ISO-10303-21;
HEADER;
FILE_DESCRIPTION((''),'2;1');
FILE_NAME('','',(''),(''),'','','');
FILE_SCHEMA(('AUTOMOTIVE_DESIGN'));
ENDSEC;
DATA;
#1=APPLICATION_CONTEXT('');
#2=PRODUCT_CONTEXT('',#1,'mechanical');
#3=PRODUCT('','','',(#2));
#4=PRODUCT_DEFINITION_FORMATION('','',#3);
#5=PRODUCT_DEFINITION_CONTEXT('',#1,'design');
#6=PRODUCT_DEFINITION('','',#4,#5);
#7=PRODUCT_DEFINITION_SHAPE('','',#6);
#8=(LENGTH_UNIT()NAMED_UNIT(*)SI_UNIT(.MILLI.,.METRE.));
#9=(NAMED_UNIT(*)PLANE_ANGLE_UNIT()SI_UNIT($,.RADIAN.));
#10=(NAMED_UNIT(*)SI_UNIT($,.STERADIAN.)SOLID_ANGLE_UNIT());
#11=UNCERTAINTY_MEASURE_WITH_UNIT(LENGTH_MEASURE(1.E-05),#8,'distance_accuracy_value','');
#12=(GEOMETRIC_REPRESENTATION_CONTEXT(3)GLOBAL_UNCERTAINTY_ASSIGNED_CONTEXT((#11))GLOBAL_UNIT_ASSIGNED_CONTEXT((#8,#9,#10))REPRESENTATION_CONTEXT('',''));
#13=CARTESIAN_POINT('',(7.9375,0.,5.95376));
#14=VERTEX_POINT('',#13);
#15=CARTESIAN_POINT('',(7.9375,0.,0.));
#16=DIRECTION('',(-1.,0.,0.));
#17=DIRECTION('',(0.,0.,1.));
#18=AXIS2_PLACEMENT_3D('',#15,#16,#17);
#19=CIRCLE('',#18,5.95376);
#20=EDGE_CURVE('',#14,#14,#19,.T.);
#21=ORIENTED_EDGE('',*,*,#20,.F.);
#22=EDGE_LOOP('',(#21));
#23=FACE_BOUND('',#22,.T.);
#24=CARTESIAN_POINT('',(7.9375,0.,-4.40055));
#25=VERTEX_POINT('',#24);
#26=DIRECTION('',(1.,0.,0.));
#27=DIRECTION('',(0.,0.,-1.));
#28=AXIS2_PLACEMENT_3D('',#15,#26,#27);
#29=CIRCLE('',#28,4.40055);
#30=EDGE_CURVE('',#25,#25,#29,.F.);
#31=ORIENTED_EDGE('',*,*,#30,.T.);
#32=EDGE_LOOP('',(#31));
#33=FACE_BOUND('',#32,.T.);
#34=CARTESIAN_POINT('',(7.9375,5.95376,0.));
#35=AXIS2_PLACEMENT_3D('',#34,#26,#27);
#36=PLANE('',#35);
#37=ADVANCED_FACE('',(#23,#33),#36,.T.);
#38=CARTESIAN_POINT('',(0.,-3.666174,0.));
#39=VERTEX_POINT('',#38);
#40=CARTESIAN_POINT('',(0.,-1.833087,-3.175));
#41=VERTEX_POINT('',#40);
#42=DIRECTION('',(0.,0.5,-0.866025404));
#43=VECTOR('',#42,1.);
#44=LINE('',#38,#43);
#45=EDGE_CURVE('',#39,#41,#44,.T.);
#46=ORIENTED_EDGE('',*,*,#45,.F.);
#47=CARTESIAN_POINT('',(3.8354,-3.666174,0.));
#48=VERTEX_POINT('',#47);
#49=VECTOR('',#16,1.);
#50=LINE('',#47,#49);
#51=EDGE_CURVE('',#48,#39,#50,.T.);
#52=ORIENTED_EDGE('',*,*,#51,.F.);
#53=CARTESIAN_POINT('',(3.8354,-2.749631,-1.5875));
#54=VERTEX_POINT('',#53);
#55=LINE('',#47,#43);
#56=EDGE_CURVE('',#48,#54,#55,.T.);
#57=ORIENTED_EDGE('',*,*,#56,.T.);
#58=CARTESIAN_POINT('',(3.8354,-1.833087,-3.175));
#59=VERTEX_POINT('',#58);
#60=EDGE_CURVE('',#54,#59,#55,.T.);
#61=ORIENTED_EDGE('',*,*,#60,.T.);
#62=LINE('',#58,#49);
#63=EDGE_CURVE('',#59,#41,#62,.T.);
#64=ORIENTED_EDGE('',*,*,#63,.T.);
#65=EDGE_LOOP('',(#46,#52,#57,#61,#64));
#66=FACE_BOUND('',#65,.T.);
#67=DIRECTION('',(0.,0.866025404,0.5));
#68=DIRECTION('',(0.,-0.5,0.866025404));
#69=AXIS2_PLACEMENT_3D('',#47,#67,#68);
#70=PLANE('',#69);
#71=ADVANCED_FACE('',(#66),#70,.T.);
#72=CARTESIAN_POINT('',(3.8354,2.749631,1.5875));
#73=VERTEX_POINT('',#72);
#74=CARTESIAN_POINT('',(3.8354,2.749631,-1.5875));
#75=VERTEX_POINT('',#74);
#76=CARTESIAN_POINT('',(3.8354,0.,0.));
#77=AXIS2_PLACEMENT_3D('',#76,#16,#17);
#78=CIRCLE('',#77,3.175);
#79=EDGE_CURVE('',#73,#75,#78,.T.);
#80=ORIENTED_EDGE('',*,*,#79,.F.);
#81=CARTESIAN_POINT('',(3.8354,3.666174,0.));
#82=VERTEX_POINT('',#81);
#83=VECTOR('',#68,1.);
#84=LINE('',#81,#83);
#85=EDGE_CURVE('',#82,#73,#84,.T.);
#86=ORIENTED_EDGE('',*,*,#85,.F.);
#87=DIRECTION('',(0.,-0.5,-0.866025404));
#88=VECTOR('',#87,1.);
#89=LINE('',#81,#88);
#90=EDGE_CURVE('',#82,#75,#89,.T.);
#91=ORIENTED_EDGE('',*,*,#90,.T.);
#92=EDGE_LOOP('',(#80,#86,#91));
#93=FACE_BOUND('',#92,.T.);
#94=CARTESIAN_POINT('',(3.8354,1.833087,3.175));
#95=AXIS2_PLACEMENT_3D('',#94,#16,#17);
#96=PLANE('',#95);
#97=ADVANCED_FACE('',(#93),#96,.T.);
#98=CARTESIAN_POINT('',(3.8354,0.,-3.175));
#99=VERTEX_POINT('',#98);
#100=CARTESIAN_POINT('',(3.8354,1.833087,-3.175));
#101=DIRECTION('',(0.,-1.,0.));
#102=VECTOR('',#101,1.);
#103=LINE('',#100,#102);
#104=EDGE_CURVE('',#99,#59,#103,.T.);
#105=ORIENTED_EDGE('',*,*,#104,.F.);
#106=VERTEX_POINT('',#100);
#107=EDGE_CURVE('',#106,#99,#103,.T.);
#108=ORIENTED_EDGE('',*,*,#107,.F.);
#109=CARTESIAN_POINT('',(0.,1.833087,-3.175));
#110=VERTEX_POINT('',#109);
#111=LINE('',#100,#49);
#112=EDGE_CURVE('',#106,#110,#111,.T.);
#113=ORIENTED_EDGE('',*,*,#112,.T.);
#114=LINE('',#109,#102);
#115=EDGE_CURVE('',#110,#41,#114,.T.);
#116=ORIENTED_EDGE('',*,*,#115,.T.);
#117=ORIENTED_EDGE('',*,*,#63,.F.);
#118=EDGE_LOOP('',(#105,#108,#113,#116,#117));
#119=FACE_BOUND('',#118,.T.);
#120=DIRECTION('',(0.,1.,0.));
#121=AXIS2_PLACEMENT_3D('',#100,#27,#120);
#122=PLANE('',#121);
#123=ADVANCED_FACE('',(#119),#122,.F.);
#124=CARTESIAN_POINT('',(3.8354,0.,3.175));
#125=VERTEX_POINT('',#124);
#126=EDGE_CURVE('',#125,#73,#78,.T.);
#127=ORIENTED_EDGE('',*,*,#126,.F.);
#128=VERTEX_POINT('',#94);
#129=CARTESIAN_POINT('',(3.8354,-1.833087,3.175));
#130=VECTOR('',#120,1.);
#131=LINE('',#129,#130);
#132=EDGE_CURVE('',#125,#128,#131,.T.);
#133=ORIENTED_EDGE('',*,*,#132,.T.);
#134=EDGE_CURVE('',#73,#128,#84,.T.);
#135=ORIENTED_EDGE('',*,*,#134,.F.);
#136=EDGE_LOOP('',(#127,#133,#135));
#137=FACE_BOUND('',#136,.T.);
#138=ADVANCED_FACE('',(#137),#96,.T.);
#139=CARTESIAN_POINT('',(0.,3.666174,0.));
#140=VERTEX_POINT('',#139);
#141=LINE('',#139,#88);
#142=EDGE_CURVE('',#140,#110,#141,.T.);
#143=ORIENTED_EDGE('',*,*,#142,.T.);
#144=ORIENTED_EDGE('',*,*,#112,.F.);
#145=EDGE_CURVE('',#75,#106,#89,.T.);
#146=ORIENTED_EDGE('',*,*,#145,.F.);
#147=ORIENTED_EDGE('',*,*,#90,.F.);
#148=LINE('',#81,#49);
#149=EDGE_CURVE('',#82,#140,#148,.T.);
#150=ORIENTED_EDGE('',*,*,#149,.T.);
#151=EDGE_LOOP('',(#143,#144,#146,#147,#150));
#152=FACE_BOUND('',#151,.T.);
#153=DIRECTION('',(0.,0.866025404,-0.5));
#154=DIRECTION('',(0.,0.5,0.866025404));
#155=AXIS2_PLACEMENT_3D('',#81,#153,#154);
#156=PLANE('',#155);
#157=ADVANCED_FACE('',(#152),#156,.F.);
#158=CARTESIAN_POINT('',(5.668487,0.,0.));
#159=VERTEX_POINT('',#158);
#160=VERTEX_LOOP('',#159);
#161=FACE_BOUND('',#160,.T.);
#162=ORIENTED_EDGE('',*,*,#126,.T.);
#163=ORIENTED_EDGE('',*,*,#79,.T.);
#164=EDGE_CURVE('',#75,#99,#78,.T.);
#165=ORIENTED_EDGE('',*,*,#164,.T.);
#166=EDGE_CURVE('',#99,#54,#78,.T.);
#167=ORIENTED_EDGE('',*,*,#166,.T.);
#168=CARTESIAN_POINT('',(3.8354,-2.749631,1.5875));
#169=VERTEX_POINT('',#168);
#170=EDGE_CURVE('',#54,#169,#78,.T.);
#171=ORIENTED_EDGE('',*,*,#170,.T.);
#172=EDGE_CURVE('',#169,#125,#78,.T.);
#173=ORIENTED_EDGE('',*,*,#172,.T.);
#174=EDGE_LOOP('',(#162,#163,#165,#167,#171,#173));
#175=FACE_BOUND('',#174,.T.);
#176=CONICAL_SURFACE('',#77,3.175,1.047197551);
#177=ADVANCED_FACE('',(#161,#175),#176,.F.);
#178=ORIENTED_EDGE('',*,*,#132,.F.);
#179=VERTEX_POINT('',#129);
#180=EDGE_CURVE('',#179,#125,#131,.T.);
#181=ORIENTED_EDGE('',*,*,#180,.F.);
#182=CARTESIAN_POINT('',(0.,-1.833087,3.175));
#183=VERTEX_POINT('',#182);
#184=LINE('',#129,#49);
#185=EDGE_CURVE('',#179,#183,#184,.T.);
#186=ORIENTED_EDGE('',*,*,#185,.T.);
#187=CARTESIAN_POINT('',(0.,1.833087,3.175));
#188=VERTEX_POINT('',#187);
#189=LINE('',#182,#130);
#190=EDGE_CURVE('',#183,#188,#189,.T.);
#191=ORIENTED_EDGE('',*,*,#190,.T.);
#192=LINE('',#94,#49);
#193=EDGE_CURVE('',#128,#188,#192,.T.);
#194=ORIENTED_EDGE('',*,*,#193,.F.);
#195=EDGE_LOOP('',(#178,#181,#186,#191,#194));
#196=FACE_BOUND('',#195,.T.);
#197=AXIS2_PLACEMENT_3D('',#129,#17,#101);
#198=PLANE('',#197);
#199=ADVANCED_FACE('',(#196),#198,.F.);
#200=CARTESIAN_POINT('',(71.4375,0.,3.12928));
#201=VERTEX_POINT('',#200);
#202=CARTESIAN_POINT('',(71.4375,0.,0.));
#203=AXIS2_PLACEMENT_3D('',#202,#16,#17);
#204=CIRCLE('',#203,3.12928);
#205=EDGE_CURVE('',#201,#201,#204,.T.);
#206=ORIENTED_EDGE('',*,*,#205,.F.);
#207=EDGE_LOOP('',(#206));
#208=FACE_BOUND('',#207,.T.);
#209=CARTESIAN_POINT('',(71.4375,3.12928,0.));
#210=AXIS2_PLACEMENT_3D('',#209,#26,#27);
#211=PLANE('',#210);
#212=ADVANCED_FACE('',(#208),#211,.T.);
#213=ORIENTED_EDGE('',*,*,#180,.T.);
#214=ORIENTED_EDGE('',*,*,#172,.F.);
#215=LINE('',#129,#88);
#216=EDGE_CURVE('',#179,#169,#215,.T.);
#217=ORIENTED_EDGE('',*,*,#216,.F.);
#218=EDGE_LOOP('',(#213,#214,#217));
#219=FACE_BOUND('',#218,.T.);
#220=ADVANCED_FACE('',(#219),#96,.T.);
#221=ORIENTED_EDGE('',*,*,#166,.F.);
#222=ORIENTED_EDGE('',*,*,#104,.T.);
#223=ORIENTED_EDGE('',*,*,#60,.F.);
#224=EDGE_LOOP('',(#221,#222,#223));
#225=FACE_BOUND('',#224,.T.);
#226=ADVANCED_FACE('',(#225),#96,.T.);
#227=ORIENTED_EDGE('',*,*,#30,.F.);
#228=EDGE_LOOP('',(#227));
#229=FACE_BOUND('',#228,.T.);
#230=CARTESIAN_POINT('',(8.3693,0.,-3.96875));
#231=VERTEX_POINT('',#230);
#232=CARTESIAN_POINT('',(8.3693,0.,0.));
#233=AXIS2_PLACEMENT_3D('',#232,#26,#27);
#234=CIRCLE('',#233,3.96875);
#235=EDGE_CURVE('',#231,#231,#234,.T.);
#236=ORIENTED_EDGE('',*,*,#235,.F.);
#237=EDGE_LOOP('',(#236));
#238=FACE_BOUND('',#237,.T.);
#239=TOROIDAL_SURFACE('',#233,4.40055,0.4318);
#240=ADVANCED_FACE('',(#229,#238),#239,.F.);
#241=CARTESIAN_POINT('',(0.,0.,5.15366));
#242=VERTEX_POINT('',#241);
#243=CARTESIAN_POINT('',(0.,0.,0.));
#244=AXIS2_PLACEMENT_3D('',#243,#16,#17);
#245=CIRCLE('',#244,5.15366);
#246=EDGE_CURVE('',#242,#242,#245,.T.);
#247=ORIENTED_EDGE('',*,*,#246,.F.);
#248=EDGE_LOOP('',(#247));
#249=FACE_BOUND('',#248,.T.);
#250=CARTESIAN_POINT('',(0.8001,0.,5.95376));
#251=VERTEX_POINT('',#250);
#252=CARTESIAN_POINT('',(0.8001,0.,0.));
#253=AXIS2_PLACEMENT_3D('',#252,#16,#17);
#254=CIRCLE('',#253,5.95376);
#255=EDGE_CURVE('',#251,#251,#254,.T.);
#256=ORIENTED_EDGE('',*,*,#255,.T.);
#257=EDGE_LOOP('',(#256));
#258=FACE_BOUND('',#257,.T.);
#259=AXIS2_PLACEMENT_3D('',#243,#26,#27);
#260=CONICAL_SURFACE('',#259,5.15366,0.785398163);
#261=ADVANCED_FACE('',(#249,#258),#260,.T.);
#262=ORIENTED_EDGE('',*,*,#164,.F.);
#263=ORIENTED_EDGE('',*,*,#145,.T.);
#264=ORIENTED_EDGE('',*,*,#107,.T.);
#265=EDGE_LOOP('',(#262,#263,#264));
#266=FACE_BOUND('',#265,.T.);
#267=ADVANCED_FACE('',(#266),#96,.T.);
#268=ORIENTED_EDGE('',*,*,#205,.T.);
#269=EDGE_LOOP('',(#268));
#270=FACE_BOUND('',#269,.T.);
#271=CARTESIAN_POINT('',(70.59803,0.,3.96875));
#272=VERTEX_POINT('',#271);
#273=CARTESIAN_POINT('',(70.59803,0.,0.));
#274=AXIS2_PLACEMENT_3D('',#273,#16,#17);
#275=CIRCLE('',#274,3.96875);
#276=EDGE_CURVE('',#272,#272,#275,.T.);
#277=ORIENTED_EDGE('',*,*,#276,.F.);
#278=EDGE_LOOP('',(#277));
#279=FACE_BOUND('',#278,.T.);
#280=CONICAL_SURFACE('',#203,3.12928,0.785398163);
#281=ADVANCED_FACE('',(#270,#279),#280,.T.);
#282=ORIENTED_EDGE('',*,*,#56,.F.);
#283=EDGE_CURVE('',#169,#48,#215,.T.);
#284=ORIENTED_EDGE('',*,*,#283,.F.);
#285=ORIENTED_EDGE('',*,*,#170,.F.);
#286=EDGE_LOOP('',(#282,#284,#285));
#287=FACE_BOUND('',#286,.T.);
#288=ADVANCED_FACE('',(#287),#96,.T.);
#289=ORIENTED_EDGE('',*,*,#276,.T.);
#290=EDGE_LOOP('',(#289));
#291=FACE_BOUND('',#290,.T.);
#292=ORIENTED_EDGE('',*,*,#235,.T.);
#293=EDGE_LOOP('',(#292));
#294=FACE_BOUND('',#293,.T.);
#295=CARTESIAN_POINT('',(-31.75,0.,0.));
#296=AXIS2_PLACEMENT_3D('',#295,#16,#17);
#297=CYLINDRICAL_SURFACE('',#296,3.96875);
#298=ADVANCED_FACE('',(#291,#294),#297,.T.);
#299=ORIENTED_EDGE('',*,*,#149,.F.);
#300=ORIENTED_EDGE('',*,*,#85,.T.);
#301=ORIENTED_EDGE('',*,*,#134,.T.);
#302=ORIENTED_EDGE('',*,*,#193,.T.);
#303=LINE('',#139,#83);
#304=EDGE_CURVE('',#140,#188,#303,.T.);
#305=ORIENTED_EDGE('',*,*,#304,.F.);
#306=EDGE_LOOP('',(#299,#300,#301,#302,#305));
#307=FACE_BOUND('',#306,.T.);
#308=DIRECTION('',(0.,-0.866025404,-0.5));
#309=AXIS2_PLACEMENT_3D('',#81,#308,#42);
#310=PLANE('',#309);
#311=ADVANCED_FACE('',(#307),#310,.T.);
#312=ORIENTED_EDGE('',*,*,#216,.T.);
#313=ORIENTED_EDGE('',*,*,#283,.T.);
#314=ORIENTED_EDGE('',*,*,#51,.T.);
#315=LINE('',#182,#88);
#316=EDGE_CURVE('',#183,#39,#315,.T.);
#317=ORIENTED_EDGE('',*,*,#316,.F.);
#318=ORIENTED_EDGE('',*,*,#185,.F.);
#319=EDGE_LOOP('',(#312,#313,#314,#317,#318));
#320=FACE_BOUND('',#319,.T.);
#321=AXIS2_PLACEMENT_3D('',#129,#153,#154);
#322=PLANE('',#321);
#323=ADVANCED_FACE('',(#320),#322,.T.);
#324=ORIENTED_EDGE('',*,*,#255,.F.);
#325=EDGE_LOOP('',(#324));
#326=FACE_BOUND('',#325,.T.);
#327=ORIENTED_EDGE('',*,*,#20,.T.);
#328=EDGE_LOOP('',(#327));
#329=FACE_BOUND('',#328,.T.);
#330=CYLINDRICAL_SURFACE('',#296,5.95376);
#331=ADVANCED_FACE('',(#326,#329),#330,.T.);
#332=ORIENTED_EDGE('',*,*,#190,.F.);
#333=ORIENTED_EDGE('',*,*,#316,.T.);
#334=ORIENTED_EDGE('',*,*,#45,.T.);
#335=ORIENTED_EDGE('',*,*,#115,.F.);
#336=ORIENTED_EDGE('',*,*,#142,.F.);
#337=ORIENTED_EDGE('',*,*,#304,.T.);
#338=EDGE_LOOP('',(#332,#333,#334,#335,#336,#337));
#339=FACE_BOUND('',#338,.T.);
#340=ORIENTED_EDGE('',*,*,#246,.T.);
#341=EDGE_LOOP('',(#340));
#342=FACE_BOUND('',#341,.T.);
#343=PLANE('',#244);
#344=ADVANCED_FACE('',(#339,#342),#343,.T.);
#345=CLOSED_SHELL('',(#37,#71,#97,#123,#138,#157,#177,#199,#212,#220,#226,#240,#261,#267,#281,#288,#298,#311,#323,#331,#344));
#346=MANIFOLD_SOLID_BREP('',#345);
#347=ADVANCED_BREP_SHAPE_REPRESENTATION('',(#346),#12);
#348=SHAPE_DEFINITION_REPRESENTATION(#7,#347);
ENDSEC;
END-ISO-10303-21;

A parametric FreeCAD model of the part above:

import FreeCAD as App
import Part
import Sketcher
Q = App.Units.Quantity


def edges_at(feature, points):
    """Names of the edges that pass closest to the given points."""
    edges = feature.Shape.Edges
    near = lambda p: min(range(len(edges)), key=lambda i: edges[i].distToShape(Part.Vertex(*p))[0])
    return sorted({f"Edge{near(p) + 1}" for p in points})


def add_polygon(sketch, points):
    """Adds a closed chain of lines whose ends are joined by coincident constraints."""
    first, n = sketch.GeometryCount, len(points)
    for a, b in zip(points, points[1:] + points[:1]):
        sketch.addGeometry(Part.LineSegment(App.Vector(*a, 0), App.Vector(*b, 0)), False)
    for i in range(n):
        sketch.addConstraint(Sketcher.Constraint("Coincident", first + i, 2, first + (i + 1) % n, 1))

doc = App.newDocument("Part")
body = doc.addObject("PartDesign::Body", "Body")

sketch1 = body.newObject("Sketcher::SketchObject", "Sketch")
sketch1.AttachmentSupport = (doc.getObject("XY_Plane"), [""])
sketch1.MapMode = "FlatFace"
add_polygon(sketch1, [(0, 5.2), (0, 0), (71.4, 0), (71.4, 3.1), (70.6, 4), (7.9, 4), (7.9, 6), (0.8, 6)])
sketch1.addConstraint(Sketcher.Constraint("Vertical", 0))
sketch1.addConstraint(Sketcher.Constraint("Horizontal", 1))
sketch1.addConstraint(Sketcher.Constraint("Vertical", 2))
sketch1.addConstraint(Sketcher.Constraint("Horizontal", 4))
sketch1.addConstraint(Sketcher.Constraint("Vertical", 5))
sketch1.addConstraint(Sketcher.Constraint("Horizontal", 6))
sketch1.addConstraint(Sketcher.Constraint("Coincident", 0, 2, -1, 1))
sketch1.addConstraint(Sketcher.Constraint("Perpendicular", 3, 7))
sketch1.addConstraint(Sketcher.Constraint("Angle", 3, Q("135 deg")))
sketch1.addConstraint(Sketcher.Constraint("DistanceX", 4, 2, 2, 2, Q("2.5 in")))
sketch1.addConstraint(Sketcher.Constraint("DistanceX", 1, 1, 1, 2, Q("2.8125 in")))
sketch1.addConstraint(Sketcher.Constraint("DistanceX", 6, 2, 6, 1, Q("0.281 in")))
sketch1.addConstraint(Sketcher.Constraint("DistanceY", 0, 2, 0, 1, Q("0.2029 in")))
sketch1.addConstraint(Sketcher.Constraint("DistanceY", 2, 1, 2, 2, Q("0.1232 in")))
sketch1.addConstraint(Sketcher.Constraint("DistanceY", -1, 1, 3, 2, Q("0.15625 in")))
revolution = body.newObject("PartDesign::Revolution", "Revolution")
revolution.Profile = sketch1
revolution.ReferenceAxis = (sketch1, ["H_Axis"])
revolution.Angle = 360
doc.recompute()

fillet = body.newObject("PartDesign::Fillet", "Fillet")
fillet.Base = (revolution, edges_at(revolution, [(7.938, 0, -3.969)]))
fillet.Radius = Q("0.017 in")

sketch2 = body.newObject("Sketcher::SketchObject", "Sketch001")
sketch2.AttachmentSupport = (doc.getObject("XY_Plane"), [""])
sketch2.MapMode = "FlatFace"
add_polygon(sketch2, [(3.8, 3.2), (0, 3.2), (0, 0), (5.7, 0)])
sketch2.addConstraint(Sketcher.Constraint("Horizontal", 0))
sketch2.addConstraint(Sketcher.Constraint("Vertical", 1))
sketch2.addConstraint(Sketcher.Constraint("Horizontal", 2))
sketch2.addConstraint(Sketcher.Constraint("Coincident", 1, 2, -1, 1))
sketch2.addConstraint(Sketcher.Constraint("Angle", 3, Q("120 deg")))
sketch2.addConstraint(Sketcher.Constraint("DistanceX", 0, 2, 0, 1, Q("0.151 in")))
sketch2.addConstraint(Sketcher.Constraint("DistanceY", 1, 2, 1, 1, Q("0.125 in")))
groove = body.newObject("PartDesign::Groove", "Groove")
groove.Profile = sketch2
groove.ReferenceAxis = (sketch2, ["H_Axis"])
groove.Angle = 360

sketch3 = body.newObject("Sketcher::SketchObject", "Sketch002")
sketch3.AttachmentSupport = (doc.getObject("YZ_Plane"), [""])
sketch3.MapMode = "FlatFace"
add_polygon(sketch3, [(3.7, 0), (1.8, -3.2), (-1.8, -3.2), (-3.7, 0), (-1.8, 3.2), (1.8, 3.2)])
sketch3.addConstraint(Sketcher.Constraint("Horizontal", 1))
sketch3.addConstraint(Sketcher.Constraint("Horizontal", 4))
sketch3.addConstraint(Sketcher.Constraint("Symmetric", 0, 2, 3, 2, -1, 1))
sketch3.addConstraint(Sketcher.Constraint("Symmetric", 2, 2, 5, 2, -1, 1))
sketch3.addConstraint(Sketcher.Constraint("PointOnObject", 2, 2, -1))
sketch3.addConstraint(Sketcher.Constraint("Parallel", 2, 5))
sketch3.addConstraint(Sketcher.Constraint("Vertical", 1, 2, 3, 2))
sketch3.addConstraint(Sketcher.Constraint("Angle", 0, Q("-120 deg")))
sketch3.addConstraint(Sketcher.Constraint("DistanceY", 1, 2, 3, 2, Q("0.25 in")))
sketch3.addConstraint(Sketcher.Constraint("DistanceX", 1, 2, 1, 1, 3.666174))
pocket1 = body.newObject("PartDesign::Pocket", "Pocket")
pocket1.Profile = sketch3
pocket1.Length = Q("0.151 in")
pocket1.Reversed = True

doc.recompute()
